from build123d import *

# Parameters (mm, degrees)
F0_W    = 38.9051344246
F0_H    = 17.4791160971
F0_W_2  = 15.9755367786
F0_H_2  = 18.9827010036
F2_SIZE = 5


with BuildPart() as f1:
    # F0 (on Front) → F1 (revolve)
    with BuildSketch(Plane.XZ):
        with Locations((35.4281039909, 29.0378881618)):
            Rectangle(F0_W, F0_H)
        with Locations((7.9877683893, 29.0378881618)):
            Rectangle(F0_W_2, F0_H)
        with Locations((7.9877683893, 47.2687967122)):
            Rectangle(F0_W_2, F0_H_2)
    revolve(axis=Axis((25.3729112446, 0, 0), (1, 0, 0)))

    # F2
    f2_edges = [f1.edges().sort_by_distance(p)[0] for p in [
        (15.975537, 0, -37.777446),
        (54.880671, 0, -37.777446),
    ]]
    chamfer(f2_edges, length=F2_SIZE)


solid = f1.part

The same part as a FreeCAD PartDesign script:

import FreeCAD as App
import Part
import Sketcher


def edges_at(feature, points):
    """Names of the edges that pass closest to the given points."""
    edges = feature.Shape.Edges
    near = lambda p: min(range(len(edges)), key=lambda i: edges[i].distToShape(Part.Vertex(*p))[0])
    return sorted({f"Edge{near(p) + 1}" for p in points})

doc = App.newDocument("Part")
body = doc.addObject("PartDesign::Body", "Body")

# Sketch on XZ plane
sketch1 = doc.addObject("Sketcher::SketchObject", "Sketch")
body.addObject(sketch1)
sketch1.AttachmentSupport = (doc.XZ_Plane, [""])
sketch1.MapMode = "FlatFace"
sketch1.addGeometry([
    Part.LineSegment(App.Vector(55, 20, 0), App.Vector(55, 38, 0)),  # 0
    Part.LineSegment(App.Vector(55, 38, 0), App.Vector(16, 38, 0)),  # 1
    Part.LineSegment(App.Vector(16, 38, 0), App.Vector(16, 57, 0)),  # 2
    Part.LineSegment(App.Vector(16, 57, 0), App.Vector(0, 57, 0)),  # 3
    Part.LineSegment(App.Vector(0, 57, 0), App.Vector(0, 20, 0)),  # 4
    Part.LineSegment(App.Vector(0, 20, 0), App.Vector(55, 20, 0)),  # 5
], False)
sketch1.addConstraint([
    Sketcher.Constraint("Coincident", 0, 2, 1, 1),
    Sketcher.Constraint("Coincident", 1, 2, 2, 1),
    Sketcher.Constraint("Coincident", 2, 2, 3, 1),
    Sketcher.Constraint("Coincident", 3, 2, 4, 1),
    Sketcher.Constraint("Coincident", 4, 2, 5, 1),
    Sketcher.Constraint("Coincident", 5, 2, 0, 1),
    Sketcher.Constraint("Vertical", 0),
    Sketcher.Constraint("Horizontal", 1),
    Sketcher.Constraint("Vertical", 2),
    Sketcher.Constraint("Horizontal", 3),
    Sketcher.Constraint("Vertical", 4),
    Sketcher.Constraint("Horizontal", 5),
    Sketcher.Constraint("PointOnObject", 3, 2, -2),
    Sketcher.Constraint("DistanceY", 2, 1, 2, 2, 18.982701),
    Sketcher.Constraint("DistanceX", 5, 1, 5, 2, 54.880671),
    Sketcher.Constraint("DistanceX", 1, 2, 1, 1, 38.905134),
    Sketcher.Constraint("DistanceY", 0, 1, 0, 2, 17.479116),
    Sketcher.Constraint("DistanceY", -1, 1, 4, 2, 20.29833),
])
revolution = doc.addObject("PartDesign::Revolution", "Revolution")
body.addObject(revolution)
revolution.Profile = sketch1
revolution.ReferenceAxis = (sketch1, ["H_Axis"])
revolution.Angle = 360
doc.recompute()

chamfer = doc.addObject("PartDesign::Chamfer", "Chamfer")
body.addObject(chamfer)
chamfer.Base = (revolution, edges_at(revolution, [(15.976, 0, -37.777), (54.881, 0, -37.777)]))
chamfer.Size = 5

doc.recompute()
